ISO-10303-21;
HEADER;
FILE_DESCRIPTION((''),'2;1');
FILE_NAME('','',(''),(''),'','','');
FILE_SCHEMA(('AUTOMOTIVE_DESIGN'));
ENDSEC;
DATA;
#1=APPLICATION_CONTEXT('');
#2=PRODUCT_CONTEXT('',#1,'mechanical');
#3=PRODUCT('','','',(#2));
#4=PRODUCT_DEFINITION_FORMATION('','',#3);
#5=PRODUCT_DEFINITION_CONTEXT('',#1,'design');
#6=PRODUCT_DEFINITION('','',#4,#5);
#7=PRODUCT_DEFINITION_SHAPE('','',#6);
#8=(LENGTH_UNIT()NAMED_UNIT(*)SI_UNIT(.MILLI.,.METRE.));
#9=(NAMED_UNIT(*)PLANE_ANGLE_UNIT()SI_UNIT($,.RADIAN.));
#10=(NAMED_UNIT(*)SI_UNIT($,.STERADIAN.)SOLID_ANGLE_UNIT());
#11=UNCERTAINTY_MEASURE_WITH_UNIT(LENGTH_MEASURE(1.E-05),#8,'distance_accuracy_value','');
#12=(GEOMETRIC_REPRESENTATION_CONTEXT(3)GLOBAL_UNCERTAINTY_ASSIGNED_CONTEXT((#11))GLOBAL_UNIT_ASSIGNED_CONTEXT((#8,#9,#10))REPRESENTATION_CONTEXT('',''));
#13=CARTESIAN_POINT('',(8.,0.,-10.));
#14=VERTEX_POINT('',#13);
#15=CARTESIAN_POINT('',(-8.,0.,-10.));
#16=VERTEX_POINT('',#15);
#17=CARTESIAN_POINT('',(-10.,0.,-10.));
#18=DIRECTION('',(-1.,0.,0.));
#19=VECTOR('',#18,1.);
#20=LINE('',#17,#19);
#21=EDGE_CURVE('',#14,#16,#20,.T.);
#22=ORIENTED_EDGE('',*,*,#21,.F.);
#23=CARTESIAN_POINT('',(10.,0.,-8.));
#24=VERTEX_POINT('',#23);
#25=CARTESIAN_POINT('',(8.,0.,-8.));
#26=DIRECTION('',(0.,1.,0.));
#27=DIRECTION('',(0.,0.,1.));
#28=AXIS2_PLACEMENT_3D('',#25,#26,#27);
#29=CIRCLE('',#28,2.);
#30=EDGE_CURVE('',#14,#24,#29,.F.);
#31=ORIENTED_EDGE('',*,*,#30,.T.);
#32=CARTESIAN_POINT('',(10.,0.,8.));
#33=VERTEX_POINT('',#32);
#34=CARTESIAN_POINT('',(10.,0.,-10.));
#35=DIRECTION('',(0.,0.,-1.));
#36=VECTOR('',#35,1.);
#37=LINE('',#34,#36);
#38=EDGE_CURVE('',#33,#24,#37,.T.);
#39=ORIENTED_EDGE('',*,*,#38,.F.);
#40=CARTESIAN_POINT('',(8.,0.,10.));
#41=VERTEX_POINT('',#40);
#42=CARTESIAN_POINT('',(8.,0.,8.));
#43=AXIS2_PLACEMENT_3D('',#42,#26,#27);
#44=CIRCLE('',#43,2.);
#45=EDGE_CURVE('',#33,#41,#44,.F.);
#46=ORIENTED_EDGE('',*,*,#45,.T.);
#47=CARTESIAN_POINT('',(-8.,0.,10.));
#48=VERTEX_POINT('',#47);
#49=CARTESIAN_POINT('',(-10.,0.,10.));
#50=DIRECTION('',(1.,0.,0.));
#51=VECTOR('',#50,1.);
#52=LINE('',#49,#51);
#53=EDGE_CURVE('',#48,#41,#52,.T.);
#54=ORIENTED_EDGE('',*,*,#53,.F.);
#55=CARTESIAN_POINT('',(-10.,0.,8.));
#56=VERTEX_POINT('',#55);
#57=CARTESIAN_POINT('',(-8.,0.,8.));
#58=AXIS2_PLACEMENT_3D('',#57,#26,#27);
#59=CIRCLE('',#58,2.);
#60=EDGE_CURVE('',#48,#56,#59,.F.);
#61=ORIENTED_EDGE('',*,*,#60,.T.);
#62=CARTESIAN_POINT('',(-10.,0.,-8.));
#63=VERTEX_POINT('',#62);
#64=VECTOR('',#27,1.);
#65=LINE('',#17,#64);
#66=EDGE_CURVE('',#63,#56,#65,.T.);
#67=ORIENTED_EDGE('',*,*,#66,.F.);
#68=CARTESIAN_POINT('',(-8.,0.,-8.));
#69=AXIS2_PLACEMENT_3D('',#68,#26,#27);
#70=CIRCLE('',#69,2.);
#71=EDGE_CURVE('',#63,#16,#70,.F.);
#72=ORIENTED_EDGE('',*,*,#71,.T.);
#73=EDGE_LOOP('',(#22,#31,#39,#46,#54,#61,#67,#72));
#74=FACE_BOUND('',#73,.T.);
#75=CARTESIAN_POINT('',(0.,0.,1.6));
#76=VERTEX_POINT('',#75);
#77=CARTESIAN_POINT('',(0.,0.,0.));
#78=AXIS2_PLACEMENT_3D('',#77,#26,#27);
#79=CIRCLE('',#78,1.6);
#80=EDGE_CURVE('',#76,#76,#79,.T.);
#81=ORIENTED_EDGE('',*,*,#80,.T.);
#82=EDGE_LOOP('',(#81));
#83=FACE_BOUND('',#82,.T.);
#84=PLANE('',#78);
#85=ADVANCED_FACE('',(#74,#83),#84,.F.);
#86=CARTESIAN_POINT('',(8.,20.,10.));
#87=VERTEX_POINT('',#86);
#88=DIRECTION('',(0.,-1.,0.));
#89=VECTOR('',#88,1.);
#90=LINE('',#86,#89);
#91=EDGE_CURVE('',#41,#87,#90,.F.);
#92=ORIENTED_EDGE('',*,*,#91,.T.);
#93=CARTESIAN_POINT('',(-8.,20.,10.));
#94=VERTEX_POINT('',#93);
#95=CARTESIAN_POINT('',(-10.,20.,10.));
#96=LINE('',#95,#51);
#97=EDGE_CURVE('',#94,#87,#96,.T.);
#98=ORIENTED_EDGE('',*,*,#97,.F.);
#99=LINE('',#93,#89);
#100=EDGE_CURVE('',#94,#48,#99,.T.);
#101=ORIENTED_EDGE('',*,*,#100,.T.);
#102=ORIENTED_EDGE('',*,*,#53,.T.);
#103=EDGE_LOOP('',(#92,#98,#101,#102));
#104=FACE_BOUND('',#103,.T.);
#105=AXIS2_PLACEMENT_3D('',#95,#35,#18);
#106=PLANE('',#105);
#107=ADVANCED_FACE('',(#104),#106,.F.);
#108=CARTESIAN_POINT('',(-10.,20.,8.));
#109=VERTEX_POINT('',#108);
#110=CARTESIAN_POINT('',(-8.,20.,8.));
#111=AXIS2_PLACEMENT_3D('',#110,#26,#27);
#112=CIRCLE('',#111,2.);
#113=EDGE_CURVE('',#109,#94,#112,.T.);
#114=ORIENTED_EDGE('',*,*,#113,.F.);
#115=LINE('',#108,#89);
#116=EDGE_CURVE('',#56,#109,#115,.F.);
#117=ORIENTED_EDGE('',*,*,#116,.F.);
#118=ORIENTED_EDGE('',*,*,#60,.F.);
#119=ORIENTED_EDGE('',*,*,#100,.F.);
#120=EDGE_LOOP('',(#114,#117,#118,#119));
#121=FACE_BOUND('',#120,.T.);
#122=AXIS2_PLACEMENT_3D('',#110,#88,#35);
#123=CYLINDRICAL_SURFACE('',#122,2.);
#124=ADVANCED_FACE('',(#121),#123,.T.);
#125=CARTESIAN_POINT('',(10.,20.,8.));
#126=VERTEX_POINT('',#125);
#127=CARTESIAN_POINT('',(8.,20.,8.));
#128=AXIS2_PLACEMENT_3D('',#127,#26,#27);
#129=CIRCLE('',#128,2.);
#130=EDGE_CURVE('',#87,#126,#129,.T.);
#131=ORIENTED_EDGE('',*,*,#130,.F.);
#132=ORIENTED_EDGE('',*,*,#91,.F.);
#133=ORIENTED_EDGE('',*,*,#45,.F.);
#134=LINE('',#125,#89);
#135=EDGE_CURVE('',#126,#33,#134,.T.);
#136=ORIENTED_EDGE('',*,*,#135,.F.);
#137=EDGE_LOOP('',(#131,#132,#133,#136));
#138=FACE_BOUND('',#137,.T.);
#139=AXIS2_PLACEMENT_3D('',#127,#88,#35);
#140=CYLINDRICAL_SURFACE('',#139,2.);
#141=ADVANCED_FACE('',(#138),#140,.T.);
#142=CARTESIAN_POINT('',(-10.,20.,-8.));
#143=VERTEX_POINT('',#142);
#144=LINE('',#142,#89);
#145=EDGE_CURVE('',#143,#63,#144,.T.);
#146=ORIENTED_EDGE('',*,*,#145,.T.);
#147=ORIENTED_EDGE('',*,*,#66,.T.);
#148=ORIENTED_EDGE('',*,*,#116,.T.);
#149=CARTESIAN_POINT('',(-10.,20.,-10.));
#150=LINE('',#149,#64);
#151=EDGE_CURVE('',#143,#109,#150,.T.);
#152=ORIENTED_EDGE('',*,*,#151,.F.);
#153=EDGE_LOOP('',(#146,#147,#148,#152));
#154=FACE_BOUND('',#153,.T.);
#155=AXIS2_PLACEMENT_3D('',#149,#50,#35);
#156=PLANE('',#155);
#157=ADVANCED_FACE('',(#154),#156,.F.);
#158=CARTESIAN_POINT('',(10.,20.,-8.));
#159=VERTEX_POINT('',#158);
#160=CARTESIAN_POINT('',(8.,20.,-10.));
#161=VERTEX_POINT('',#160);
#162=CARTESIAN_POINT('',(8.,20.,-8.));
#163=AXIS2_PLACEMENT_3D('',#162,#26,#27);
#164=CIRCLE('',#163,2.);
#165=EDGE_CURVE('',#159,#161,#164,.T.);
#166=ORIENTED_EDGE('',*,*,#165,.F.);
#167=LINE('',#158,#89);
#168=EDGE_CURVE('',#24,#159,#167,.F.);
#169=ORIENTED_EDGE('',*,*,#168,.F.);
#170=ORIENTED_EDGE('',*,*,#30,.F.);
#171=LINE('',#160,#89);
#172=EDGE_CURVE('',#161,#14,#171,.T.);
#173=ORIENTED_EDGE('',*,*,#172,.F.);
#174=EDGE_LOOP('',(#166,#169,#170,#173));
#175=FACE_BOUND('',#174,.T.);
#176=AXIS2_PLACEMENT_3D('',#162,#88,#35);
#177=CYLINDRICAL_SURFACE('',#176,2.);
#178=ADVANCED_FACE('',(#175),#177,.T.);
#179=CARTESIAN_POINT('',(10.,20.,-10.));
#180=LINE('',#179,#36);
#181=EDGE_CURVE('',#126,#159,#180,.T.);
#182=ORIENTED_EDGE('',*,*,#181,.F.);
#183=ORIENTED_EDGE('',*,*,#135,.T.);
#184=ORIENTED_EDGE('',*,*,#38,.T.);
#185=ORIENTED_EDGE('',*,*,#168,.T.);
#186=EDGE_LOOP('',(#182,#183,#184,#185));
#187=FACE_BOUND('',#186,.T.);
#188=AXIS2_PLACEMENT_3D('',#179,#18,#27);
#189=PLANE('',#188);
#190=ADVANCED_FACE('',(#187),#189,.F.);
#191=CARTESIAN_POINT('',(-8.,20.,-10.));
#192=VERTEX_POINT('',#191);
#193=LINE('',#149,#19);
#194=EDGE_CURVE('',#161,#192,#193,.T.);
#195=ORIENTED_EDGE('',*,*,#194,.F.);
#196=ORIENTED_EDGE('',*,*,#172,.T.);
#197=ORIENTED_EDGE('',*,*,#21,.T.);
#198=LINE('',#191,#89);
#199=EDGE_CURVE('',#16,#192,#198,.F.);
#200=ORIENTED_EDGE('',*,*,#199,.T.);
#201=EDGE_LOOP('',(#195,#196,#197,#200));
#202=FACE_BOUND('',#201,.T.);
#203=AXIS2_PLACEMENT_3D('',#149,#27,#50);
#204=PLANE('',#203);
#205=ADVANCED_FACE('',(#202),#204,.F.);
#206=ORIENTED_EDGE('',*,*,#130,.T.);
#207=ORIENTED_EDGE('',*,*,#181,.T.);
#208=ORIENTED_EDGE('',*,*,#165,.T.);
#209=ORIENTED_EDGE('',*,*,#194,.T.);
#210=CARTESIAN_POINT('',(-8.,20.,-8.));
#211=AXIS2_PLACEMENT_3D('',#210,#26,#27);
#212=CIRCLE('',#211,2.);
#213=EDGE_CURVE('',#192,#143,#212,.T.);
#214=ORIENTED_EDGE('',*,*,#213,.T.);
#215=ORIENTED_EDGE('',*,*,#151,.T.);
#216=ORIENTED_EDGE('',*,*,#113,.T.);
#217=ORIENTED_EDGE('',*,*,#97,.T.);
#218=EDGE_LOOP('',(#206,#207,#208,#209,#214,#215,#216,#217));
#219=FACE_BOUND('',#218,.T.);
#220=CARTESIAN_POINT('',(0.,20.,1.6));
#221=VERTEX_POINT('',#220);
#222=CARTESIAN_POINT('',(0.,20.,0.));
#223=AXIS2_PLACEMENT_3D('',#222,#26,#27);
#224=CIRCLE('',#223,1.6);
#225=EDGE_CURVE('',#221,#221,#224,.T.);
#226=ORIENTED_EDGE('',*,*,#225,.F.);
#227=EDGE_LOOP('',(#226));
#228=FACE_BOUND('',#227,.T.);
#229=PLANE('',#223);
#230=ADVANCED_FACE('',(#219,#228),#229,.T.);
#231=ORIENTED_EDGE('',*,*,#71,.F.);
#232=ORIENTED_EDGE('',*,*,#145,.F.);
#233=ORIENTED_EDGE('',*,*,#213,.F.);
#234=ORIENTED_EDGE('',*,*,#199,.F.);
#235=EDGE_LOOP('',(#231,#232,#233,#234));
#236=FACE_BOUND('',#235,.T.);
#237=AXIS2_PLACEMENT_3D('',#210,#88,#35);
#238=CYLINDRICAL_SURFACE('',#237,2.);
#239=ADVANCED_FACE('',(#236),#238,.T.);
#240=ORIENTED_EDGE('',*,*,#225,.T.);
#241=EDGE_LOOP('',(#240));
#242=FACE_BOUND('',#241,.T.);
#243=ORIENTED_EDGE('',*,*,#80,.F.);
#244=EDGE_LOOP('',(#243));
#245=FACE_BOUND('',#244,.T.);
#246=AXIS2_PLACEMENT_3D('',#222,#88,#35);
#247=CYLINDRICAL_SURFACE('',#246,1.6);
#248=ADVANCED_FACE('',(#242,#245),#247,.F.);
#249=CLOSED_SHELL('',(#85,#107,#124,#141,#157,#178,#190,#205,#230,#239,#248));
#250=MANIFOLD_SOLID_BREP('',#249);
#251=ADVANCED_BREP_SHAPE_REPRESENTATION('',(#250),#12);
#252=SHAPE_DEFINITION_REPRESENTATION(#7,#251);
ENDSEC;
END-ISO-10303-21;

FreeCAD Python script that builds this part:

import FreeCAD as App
import Part
import Sketcher

V = App.Vector
Q = App.Units.Quantity


def edges_at(feature, points):
    """Names of the edges that pass closest to the given points."""
    edges = feature.Shape.Edges
    near = lambda p: min(range(len(edges)), key=lambda i: edges[i].distToShape(Part.Vertex(*p))[0])
    return sorted({f"Edge{near(p) + 1}" for p in points})


def add_polygon(sketch, points):
    """Adds a closed chain of lines whose ends are joined by coincident constraints."""
    first, n = sketch.GeometryCount, len(points)
    for a, b in zip(points, points[1:] + points[:1]):
        sketch.addGeometry(Part.LineSegment(App.Vector(*a, 0), App.Vector(*b, 0)), False)
    for i in range(n):
        sketch.addConstraint(Sketcher.Constraint("Coincident", first + i, 2, first + (i + 1) % n, 1))

doc = App.newDocument("Part")
body = doc.addObject("PartDesign::Body", "Body")

sketch1 = doc.addObject("Sketcher::SketchObject", "Sketch")
body.addObject(sketch1)
sketch1.AttachmentSupport = (doc.XZ_Plane, [""])
sketch1.MapMode = "FlatFace"
add_polygon(sketch1, [(-10, -10), (-10, 10), (10, 10), (10, -10)])
sketch1.addGeometry(Part.Circle(V(0, 0, 0), V(0, 0, 1), 1.6), False)
sketch1.addConstraint([
    Sketcher.Constraint("Vertical", 0),
    Sketcher.Constraint("Horizontal", 1),
    Sketcher.Constraint("Vertical", 2),
    Sketcher.Constraint("Horizontal", 3),
    Sketcher.Constraint("Coincident", 4, 3, -1, 1),
    Sketcher.Constraint("Symmetric", 0, 2, 2, 2, -1, 1),
    Sketcher.Constraint("Equal", 3, 0),
    Sketcher.Constraint("Diameter", 4, Q("3.2 mm")),
    Sketcher.Constraint("DistanceX", 1, 1, 1, 2, Q("20 mm")),
])
pad1 = doc.addObject("PartDesign::Pad", "Pad")
body.addObject(pad1)
pad1.Profile = sketch1
pad1.Length = 20
pad1.Reversed = True
doc.recompute()

fillet = doc.addObject("PartDesign::Fillet", "Fillet")
body.addObject(fillet)
fillet.Base = (pad1, edges_at(pad1, [
    (10, 10, 10),
    (-10, 10, 10),
    (-10, 10, -10),
    (10, 10, -10),
]))
fillet.Radius = 2

doc.recompute()
